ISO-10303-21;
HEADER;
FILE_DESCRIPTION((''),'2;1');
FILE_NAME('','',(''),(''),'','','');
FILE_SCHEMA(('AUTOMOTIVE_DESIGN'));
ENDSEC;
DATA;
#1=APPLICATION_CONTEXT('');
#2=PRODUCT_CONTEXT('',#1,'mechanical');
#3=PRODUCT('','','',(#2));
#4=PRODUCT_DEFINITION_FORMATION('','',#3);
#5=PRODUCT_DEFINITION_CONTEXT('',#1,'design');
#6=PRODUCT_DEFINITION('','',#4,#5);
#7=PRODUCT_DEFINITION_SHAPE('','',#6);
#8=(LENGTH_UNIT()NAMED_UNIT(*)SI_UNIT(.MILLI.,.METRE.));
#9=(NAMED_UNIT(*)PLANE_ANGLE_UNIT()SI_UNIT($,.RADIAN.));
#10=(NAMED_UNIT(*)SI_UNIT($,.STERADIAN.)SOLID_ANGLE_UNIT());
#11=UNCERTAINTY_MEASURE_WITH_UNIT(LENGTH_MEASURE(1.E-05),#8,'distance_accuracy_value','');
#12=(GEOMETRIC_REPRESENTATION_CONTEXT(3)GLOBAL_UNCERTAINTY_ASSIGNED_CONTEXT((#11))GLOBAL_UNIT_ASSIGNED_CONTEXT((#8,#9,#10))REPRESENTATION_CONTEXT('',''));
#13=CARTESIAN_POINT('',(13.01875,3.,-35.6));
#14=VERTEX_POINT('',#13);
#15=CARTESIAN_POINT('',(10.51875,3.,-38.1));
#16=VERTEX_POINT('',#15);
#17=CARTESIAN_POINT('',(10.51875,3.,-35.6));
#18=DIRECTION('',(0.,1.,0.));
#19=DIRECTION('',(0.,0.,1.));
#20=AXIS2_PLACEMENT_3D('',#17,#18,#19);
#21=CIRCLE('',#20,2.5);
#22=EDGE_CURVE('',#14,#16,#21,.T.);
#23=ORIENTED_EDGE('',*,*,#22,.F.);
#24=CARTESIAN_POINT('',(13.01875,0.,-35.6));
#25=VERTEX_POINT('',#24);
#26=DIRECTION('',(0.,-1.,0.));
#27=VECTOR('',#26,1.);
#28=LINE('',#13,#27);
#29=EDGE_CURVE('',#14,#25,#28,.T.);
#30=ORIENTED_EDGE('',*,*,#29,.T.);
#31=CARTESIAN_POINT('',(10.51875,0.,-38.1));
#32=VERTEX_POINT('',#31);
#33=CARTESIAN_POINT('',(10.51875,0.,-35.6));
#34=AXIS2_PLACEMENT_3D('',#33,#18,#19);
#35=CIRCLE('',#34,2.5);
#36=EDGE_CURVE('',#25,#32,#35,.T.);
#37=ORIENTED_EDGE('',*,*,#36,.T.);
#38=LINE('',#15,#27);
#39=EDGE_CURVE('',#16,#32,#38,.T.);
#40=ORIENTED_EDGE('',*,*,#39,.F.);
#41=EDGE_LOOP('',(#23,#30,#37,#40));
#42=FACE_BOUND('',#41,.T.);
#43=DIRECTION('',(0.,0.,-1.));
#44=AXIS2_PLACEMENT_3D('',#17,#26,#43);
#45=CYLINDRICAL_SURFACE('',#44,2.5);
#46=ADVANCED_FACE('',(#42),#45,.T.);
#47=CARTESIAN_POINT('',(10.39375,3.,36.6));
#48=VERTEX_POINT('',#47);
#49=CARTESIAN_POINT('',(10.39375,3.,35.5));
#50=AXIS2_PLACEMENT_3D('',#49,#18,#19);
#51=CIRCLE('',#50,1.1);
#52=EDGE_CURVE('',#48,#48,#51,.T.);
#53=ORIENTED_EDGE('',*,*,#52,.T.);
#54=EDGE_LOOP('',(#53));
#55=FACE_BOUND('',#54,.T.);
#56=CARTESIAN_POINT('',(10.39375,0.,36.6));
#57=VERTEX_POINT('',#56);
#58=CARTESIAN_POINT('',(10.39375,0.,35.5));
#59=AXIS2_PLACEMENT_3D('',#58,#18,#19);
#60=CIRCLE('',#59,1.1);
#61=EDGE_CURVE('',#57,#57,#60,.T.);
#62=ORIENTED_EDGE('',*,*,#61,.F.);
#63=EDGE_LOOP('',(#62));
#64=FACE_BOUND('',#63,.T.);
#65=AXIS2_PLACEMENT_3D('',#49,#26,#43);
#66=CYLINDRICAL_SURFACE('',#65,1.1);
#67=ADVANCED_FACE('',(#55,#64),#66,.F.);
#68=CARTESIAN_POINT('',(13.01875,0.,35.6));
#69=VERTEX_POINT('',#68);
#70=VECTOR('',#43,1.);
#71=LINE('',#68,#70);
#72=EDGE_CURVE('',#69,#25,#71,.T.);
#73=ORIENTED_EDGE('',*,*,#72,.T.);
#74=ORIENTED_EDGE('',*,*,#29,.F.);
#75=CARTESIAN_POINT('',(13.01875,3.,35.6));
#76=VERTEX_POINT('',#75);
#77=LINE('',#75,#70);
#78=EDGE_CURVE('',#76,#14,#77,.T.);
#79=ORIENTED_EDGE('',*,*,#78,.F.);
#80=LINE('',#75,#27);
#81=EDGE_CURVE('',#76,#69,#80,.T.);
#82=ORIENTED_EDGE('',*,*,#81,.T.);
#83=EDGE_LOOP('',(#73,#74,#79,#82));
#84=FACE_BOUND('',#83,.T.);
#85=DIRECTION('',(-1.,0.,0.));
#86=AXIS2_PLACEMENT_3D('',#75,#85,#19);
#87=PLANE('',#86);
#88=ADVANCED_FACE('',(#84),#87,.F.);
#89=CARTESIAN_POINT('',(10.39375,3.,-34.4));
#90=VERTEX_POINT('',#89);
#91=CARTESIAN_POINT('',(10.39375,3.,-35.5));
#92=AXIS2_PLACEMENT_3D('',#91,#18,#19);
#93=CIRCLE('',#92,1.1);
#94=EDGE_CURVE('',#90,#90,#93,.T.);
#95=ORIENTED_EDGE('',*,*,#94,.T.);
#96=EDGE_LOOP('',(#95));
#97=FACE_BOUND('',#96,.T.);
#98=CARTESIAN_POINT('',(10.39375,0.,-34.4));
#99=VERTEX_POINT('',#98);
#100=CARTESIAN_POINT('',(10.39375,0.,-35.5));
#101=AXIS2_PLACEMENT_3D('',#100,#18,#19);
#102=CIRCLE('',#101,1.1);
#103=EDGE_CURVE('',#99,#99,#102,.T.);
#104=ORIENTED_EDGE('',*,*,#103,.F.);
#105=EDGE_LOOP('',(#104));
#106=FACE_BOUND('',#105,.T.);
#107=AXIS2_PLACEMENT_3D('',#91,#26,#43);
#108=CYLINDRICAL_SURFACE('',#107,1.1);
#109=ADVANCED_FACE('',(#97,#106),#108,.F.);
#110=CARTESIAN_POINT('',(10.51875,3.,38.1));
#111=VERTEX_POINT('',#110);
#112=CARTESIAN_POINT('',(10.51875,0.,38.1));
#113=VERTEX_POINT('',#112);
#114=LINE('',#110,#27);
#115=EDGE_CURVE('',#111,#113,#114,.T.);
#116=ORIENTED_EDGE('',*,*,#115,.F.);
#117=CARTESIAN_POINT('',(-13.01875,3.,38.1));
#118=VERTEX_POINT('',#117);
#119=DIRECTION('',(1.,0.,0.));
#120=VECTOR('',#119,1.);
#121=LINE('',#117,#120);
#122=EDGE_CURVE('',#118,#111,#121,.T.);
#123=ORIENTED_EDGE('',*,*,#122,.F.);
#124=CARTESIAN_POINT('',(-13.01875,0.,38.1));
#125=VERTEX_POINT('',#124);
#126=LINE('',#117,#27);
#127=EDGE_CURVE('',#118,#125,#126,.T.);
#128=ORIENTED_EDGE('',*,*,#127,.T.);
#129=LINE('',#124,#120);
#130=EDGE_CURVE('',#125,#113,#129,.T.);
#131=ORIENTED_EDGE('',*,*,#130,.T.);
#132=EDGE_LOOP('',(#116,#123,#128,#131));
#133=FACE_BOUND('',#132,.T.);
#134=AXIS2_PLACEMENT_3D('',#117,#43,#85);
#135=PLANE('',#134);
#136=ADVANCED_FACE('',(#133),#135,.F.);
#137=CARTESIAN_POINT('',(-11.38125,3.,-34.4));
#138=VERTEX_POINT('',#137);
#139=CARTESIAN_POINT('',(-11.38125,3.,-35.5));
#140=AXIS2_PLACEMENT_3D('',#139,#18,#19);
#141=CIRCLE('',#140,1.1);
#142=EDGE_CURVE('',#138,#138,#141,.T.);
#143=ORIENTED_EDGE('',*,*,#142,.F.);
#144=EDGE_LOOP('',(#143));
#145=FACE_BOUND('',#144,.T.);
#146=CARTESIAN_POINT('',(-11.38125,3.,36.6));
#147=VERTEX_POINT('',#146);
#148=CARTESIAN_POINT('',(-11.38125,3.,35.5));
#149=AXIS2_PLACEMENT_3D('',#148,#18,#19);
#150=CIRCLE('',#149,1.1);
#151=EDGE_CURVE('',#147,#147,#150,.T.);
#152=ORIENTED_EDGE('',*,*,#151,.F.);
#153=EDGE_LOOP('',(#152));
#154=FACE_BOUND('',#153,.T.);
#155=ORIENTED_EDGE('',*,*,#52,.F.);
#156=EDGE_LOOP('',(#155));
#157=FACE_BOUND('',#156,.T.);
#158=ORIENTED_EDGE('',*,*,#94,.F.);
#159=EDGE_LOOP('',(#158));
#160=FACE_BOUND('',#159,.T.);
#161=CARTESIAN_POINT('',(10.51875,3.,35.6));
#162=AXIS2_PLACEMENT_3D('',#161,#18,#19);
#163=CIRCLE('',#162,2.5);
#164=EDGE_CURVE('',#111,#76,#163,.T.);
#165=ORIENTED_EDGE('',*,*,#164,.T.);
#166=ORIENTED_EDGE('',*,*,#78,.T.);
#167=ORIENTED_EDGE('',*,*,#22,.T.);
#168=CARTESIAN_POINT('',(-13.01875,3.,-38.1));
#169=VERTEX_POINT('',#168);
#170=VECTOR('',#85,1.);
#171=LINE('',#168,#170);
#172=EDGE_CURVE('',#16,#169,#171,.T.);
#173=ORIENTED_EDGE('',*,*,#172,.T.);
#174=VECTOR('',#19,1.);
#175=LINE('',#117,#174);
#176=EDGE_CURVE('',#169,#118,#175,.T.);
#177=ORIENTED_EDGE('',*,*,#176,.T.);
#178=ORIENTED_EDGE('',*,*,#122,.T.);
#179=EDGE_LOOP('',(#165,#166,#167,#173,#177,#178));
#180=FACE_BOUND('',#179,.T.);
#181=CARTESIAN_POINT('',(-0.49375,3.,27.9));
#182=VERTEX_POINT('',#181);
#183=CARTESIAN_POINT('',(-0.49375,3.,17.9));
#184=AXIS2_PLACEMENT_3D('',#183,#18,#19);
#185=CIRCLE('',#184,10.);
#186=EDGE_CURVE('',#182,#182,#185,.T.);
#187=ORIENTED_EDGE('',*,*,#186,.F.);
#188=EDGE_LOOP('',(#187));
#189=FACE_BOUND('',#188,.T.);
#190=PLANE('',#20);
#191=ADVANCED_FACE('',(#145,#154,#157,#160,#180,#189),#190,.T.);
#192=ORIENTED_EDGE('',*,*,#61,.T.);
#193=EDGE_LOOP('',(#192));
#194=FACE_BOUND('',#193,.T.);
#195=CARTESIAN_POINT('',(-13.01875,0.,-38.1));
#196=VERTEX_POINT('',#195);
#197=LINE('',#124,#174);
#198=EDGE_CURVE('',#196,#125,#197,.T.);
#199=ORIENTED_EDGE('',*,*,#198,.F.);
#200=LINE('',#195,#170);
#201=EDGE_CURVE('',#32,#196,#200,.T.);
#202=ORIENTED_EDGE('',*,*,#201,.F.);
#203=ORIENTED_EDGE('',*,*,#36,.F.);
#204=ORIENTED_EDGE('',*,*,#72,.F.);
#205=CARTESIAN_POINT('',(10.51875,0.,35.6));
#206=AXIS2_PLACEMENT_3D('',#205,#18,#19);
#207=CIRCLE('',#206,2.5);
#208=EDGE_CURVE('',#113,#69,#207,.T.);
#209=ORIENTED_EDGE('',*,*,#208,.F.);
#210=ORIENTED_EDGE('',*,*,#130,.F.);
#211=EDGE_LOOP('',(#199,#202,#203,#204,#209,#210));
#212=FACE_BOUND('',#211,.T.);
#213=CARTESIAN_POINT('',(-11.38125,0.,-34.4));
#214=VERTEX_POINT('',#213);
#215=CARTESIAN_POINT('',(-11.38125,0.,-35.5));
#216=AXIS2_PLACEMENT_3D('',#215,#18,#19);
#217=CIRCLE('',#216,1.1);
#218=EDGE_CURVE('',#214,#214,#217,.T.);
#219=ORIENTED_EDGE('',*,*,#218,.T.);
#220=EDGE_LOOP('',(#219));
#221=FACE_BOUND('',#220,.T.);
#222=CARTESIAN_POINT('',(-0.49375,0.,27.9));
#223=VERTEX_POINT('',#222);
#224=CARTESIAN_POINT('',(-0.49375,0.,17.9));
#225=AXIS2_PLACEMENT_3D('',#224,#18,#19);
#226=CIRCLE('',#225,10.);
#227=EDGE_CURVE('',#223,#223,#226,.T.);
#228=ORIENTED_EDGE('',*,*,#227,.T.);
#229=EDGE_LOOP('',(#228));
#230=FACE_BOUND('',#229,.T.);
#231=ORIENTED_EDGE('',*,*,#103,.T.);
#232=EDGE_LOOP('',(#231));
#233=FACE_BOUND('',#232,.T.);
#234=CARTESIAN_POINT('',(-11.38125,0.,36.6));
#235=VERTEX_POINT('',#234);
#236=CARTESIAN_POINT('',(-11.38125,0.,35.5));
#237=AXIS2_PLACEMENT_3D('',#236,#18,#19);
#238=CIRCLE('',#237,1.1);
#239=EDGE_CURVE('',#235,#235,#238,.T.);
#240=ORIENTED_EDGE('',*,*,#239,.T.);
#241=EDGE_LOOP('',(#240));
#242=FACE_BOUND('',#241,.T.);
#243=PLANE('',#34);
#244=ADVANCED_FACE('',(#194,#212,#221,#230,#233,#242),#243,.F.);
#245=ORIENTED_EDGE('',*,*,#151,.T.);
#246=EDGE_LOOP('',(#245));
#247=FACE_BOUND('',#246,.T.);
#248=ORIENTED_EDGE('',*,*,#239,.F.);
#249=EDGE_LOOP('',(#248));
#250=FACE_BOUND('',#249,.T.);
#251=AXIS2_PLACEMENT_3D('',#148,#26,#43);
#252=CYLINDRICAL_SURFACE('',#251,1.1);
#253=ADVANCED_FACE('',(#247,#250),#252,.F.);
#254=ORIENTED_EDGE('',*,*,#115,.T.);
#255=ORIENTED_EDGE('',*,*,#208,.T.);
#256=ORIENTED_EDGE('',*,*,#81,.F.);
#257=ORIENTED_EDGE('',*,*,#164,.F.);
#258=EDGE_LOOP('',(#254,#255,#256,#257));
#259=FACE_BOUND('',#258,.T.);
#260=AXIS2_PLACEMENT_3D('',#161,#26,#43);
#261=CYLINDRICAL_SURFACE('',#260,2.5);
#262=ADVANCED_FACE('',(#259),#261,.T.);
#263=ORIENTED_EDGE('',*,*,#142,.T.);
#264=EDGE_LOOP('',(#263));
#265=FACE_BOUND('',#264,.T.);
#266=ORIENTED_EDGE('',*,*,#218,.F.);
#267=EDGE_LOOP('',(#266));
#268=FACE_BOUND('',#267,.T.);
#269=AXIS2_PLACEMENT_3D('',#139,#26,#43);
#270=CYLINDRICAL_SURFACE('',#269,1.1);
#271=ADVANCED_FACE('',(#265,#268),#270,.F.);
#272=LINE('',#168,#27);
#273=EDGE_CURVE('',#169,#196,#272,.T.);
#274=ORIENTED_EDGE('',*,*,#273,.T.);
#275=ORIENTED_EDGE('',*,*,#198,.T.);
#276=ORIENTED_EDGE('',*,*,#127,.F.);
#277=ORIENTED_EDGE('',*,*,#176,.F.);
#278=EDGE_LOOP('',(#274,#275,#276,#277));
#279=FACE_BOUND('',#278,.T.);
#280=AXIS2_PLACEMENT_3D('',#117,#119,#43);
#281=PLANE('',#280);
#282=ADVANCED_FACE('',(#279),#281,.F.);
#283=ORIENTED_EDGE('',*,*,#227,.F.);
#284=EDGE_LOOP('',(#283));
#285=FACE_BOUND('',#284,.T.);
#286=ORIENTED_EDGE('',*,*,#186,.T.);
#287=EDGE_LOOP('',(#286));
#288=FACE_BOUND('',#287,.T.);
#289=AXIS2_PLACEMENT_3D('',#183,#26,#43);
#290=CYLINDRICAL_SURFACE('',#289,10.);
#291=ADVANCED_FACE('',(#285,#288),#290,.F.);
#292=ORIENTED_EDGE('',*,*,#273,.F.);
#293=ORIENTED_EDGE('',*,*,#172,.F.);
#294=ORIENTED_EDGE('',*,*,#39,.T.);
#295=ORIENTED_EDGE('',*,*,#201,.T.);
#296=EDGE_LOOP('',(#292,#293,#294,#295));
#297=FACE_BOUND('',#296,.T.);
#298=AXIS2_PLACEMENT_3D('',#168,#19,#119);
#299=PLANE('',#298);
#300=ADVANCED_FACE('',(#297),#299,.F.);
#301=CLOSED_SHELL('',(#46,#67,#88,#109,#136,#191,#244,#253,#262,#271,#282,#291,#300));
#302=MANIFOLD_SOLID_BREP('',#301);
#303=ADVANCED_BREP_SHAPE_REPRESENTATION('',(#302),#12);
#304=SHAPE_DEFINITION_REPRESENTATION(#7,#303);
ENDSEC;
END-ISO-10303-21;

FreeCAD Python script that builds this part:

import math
import FreeCAD as App
import Part
import Sketcher
from FreeCAD import Vector

doc = App.newDocument("Part")
body = doc.addObject("PartDesign::Body", "Body")

sketch1 = body.newObject("Sketcher::SketchObject", "Sketch")
sketch1.AttachmentSupport = (doc.getObject("XZ_Plane"), [""])
sketch1.MapMode = "FlatFace"
sketch1.addGeometry([
    Part.LineSegment(Vector(-13, 38.1, 0), Vector(10.5, 38.1, 0)),
    Part.ArcOfCircle(Part.Circle(Vector(10.5, 35.6, 0), Vector(0, 0, 1), 2.5), math.radians(0), math.radians(90)),
    Part.LineSegment(Vector(13, 35.6, 0), Vector(13, -35.6, 0)),
    Part.ArcOfCircle(Part.Circle(Vector(10.5, -35.6, 0), Vector(0, 0, 1), 2.5), math.radians(-90), math.radians(0)),
    Part.LineSegment(Vector(10.5, -38.1, 0), Vector(-13, -38.1, 0)),
    Part.LineSegment(Vector(-13, -38.1, 0), Vector(-13, 38.1, 0)),
    Part.Circle(Vector(-11.4, 35.5, 0), Vector(0, 0, 1), 1.1),
    Part.Circle(Vector(10.4, 35.5, 0), Vector(0, 0, 1), 1.1),
    Part.Circle(Vector(-0.5, 17.9, 0), Vector(0, 0, 1), 10),
    Part.Circle(Vector(-11.4, -35.5, 0), Vector(0, 0, 1), 1.1),
    Part.Circle(Vector(10.4, -35.5, 0), Vector(0, 0, 1), 1.1),
], False)
sketch1.addConstraint([
    Sketcher.Constraint("Tangent", 0, 2, 1, 2),
    Sketcher.Constraint("Tangent", 1, 1, 2, 1),
    Sketcher.Constraint("Tangent", 2, 2, 3, 2),
    Sketcher.Constraint("Tangent", 3, 1, 4, 1),
    Sketcher.Constraint("Coincident", 4, 2, 5, 1),
    Sketcher.Constraint("Coincident", 5, 2, 0, 1),
    Sketcher.Constraint("Horizontal", 0),
    Sketcher.Constraint("Vertical", 2),
    Sketcher.Constraint("Horizontal", 4),
    Sketcher.Constraint("Vertical", 5),
    Sketcher.Constraint("Equal", 1, 3),
    Sketcher.Constraint("Equal", 6, 7),
    Sketcher.Constraint("Equal", 7, 9),
    Sketcher.Constraint("Equal", 9, 10),
    Sketcher.Constraint("Symmetric", 6, 3, 9, 3, -1),
    Sketcher.Constraint("Symmetric", 7, 3, 10, 3, -1),
    Sketcher.Constraint("Horizontal", 6, 3, 7, 3),
    Sketcher.Constraint("Diameter", 8, 20.0),
    Sketcher.Constraint("Diameter", 6, 2.2),
    Sketcher.Constraint("Radius", 1, 2.5),
    Sketcher.Constraint("DistanceY", 2, 2, 2, 1, 71.2),
    Sketcher.Constraint("DistanceY", 9, 3, 6, 3, 71.0),
    Sketcher.Constraint("DistanceY", 3, 1, 8, 3, 56.0),
    Sketcher.Constraint("DistanceY", -1, 1, 1, 3, 35.6),
    Sketcher.Constraint("DistanceX", 6, 3, 1, 3, 21.9),
    Sketcher.Constraint("DistanceX", 0, 1, 0, 2, 23.5375),
    Sketcher.Constraint("DistanceX", 7, 3, 1, 3, 0.125),
    Sketcher.Constraint("DistanceX", 5, 2, 8, 3, 12.525),
    Sketcher.Constraint("DistanceX", -1, 1, 1, 3, 10.51875),
])
pad1 = body.newObject("PartDesign::Pad", "Pad")
pad1.Profile = sketch1
pad1.Length = 3
pad1.Reversed = True

doc.recompute()
